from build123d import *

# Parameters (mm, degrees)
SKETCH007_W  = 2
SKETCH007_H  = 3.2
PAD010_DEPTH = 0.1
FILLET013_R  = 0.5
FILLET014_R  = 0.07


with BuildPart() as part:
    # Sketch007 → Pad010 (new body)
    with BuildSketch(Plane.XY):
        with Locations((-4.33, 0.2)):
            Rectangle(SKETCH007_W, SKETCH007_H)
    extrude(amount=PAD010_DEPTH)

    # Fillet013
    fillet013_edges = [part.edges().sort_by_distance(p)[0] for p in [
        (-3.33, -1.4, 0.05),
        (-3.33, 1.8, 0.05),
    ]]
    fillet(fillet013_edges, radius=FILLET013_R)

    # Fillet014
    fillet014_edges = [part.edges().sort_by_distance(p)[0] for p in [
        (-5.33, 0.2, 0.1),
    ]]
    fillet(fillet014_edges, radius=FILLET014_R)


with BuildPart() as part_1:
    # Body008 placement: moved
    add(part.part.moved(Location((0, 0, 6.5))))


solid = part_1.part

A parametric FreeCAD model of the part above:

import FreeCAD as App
import Part
import Sketcher

V = App.Vector


def edges_at(feature, points):
    """Names of the edges that pass closest to the given points."""
    edges = feature.Shape.Edges
    near = lambda p: min(range(len(edges)), key=lambda i: edges[i].distToShape(Part.Vertex(*p))[0])
    return sorted({f"Edge{near(p) + 1}" for p in points})


def add_polygon(sketch, points):
    """Adds a closed chain of lines whose ends are joined by coincident constraints."""
    first, n = sketch.GeometryCount, len(points)
    for a, b in zip(points, points[1:] + points[:1]):
        sketch.addGeometry(Part.LineSegment(App.Vector(*a, 0), App.Vector(*b, 0)), False)
    for i in range(n):
        sketch.addConstraint(Sketcher.Constraint("Coincident", first + i, 2, first + (i + 1) % n, 1))

doc = App.newDocument("Part")
params = doc.addObject("Spreadsheet::Sheet", "Params")
for row, (alias, value) in enumerate([
    ("sketch1_width", "2 mm"),
    ("sketch1_height", "3.2 mm"),
    ("pad1_length", "0.1 mm"),
    ("fillet_radius", "0.5 mm"),
    ("fillet2_radius", "0.07 mm"),
], start=1):
    params.set(f"A{row}", alias)
    params.set(f"B{row}", "=" + value)
    params.setAlias(f"B{row}", alias)

body = doc.addObject("PartDesign::Body", "Body")

# Sketch on XY plane
sketch1 = body.newObject("Sketcher::SketchObject", "Sketch")
sketch1.AttachmentSupport = (doc.getObject("XY_Plane"), [""])
sketch1.MapMode = "FlatFace"
add_polygon(sketch1, [(-5.3, 1.8), (-5.3, -1.4), (-3.3, -1.4), (-3.3, 1.8)])  # lines 0-3
sketch1.addConstraint(Sketcher.Constraint("Vertical", 0))
sketch1.addConstraint(Sketcher.Constraint("Horizontal", 1))
sketch1.addConstraint(Sketcher.Constraint("Vertical", 2))
sketch1.addConstraint(Sketcher.Constraint("Horizontal", 3))
sketch1.addConstraint(Sketcher.Constraint("DistanceX", 1, 1, 1, 2, 2.0))
sketch1.addConstraint(Sketcher.Constraint("DistanceY", 0, 2, 0, 1, 3.2))
sketch1.addConstraint(Sketcher.Constraint("DistanceY", 0, 2, -1, 1, 1.4))
sketch1.addConstraint(Sketcher.Constraint("DistanceX", 0, 2, -1, 1, 5.33))
sketch1.setExpression("Constraints[8]", "Params.sketch1_width")
sketch1.setExpression("Constraints[9]", "Params.sketch1_height")
pad1 = body.newObject("PartDesign::Pad", "Pad")
pad1.Profile = sketch1
pad1.setExpression("Length", "Params.pad1_length")
doc.recompute()

fillet = body.newObject("PartDesign::Fillet", "Fillet")
fillet.Base = (pad1, edges_at(pad1, [(-3.33, -1.4, 0.05), (-3.33, 1.8, 0.05)]))
fillet.setExpression("Radius", "Params.fillet_radius")
doc.recompute()

fillet2 = body.newObject("PartDesign::Fillet", "Fillet001")
fillet2.Base = (fillet, edges_at(fillet, [(-5.33, 0.2, 0.1)]))
fillet2.setExpression("Radius", "Params.fillet2_radius")
body2 = doc.addObject("PartDesign::Body", "Body001")
doc.recompute()

body.Placement = App.Placement(V(0, 0, 6.5), App.Rotation(V(0, 0, 1), 0))
boolean = body2.newObject("PartDesign::Boolean", "Boolean")
boolean.Type = "Fuse"
boolean.addObjects([body])

doc.recompute()
